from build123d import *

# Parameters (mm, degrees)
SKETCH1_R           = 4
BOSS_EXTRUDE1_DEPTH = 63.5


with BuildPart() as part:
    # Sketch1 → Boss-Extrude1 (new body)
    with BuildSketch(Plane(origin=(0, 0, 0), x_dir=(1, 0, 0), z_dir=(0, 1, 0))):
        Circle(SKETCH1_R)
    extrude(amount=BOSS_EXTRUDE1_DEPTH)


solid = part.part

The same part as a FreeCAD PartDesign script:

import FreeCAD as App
import Part
import Sketcher

doc = App.newDocument("Part")
body = doc.addObject("PartDesign::Body", "Body")

# Sketch on XZ plane
sketch1 = body.newObject("Sketcher::SketchObject", "Sketch")
sketch1.AttachmentSupport = (doc.getObject("XZ_Plane"), [""])
sketch1.MapMode = "FlatFace"
sketch1.addGeometry(Part.Circle(App.Vector(0, 0, 0), App.Vector(0, 0, 1), 4), False)
sketch1.addConstraint([
    Sketcher.Constraint("Coincident", 0, 3, -1, 1),
    Sketcher.Constraint("Diameter", 0, 8.0),
])
pad1 = body.newObject("PartDesign::Pad", "Pad")
pad1.Profile = sketch1
pad1.Length = 63.5
pad1.Reversed = True

doc.recompute()
